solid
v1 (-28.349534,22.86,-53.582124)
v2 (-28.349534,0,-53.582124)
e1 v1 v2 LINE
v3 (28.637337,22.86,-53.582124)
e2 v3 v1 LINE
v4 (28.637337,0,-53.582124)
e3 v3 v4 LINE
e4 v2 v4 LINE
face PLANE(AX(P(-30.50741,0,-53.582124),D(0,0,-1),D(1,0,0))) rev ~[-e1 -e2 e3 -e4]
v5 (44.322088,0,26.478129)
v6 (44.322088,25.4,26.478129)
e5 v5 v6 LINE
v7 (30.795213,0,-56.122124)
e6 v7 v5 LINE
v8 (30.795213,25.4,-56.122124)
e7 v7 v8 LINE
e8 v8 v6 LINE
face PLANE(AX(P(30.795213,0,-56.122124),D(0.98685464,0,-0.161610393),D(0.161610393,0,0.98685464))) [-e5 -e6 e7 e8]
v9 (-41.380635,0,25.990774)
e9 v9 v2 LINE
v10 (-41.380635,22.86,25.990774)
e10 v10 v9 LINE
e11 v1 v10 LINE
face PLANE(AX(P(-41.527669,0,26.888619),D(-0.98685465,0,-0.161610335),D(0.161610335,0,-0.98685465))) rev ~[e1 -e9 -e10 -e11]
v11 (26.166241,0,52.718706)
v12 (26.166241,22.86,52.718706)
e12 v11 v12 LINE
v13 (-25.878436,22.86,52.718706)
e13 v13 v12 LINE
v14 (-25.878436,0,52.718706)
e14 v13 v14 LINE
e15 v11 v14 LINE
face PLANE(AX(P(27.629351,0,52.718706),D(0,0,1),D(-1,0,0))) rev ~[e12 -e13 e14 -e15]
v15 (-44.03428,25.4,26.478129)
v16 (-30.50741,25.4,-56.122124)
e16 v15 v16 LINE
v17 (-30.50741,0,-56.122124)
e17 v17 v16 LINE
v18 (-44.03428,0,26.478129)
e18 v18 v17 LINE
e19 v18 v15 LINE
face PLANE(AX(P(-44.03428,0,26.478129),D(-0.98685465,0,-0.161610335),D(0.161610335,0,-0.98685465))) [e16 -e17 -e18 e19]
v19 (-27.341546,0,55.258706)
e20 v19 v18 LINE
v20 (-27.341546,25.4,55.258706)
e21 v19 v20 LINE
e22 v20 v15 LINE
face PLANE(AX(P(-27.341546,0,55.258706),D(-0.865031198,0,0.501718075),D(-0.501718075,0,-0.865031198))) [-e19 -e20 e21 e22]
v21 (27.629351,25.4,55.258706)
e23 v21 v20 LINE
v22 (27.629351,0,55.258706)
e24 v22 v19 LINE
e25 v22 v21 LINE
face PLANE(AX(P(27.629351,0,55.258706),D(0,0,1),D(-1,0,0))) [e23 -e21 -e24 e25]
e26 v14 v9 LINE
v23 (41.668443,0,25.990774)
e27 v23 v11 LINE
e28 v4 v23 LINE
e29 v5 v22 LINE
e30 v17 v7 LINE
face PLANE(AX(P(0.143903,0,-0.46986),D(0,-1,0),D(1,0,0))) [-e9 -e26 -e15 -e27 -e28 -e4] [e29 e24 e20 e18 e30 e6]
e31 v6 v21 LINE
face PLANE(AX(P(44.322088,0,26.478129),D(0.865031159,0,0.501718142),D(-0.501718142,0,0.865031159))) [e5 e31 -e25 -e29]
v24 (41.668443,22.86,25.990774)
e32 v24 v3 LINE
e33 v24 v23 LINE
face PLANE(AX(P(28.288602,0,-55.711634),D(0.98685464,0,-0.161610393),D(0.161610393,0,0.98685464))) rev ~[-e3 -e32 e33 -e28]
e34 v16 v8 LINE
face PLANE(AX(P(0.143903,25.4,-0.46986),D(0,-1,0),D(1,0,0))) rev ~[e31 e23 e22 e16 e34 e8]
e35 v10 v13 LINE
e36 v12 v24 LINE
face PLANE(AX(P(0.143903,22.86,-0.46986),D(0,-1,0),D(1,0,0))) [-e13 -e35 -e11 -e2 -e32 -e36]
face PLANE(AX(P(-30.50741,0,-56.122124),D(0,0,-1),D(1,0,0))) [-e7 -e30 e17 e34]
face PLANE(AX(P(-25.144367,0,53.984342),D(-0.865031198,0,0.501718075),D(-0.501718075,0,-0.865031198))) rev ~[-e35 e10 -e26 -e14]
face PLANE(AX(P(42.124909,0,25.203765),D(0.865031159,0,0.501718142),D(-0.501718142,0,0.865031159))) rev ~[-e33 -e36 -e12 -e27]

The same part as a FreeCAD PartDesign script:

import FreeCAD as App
import Part
import Sketcher

V = App.Vector
Q = App.Units.Quantity


def faces_at(feature, points):
    """Names of the faces that lie closest to the given points."""
    faces = feature.Shape.Faces
    near = lambda p: min(range(len(faces)), key=lambda i: faces[i].distToShape(Part.Vertex(*p))[0])
    return sorted({f"Face{near(p) + 1}" for p in points})

doc = App.newDocument("Part")
body = doc.addObject("PartDesign::Body", "Body")

# Sketch on XZ plane
sketch1 = doc.addObject("Sketcher::SketchObject", "Sketch")
body.addObject(sketch1)
sketch1.AttachmentSupport = (doc.XZ_Plane, [""])
sketch1.MapMode = "FlatFace"
sketch1.addGeometry([
    Part.LineSegment(V(28, 55, 0), V(-27, 55, 0)),  # 0
    Part.LineSegment(V(-27, 55, 0), V(-44, 26, 0)),  # 1
    Part.LineSegment(V(-44, 26, 0), V(-31, -56, 0)),  # 2
    Part.LineSegment(V(-31, -56, 0), V(31, -56, 0)),  # 3
    Part.LineSegment(V(31, -56, 0), V(44, 26, 0)),  # 4
    Part.LineSegment(V(44, 26, 0), V(28, 55, 0)),  # 5
], False)
sketch1.addConstraint([
    Sketcher.Constraint("Coincident", 0, 2, 1, 1),
    Sketcher.Constraint("Coincident", 1, 2, 2, 1),
    Sketcher.Constraint("Coincident", 2, 2, 3, 1),
    Sketcher.Constraint("Coincident", 3, 2, 4, 1),
    Sketcher.Constraint("Coincident", 4, 2, 5, 1),
    Sketcher.Constraint("Coincident", 5, 2, 0, 1),
    Sketcher.Constraint("Horizontal", 0),
    Sketcher.Constraint("Horizontal", 3),
    Sketcher.Constraint("Horizontal", 1, 2, 4, 2),
    Sketcher.Constraint("Equal", 2, 4),
    Sketcher.Constraint("Equal", 1, 5),
    Sketcher.Constraint("DistanceX", 2, 2, 4, 2, 74.829498),
    Sketcher.Constraint("DistanceX", 0, 2, 0, 1, 54.970897),
    Sketcher.Constraint("DistanceX", 3, 1, 3, 2, 61.302623),
    Sketcher.Constraint("DistanceX", 1, 2, -1, 1, 44.03428),
    Sketcher.Constraint("DistanceY", -1, 1, 1, 2, 26.478129),
    Sketcher.Constraint("DistanceY", 2, 2, 0, 2, 111.38083),
    Sketcher.Constraint("Distance", 1, 33.271143),
])
pad1 = doc.addObject("PartDesign::Pad", "Pad")
body.addObject(pad1)
pad1.Profile = sketch1
pad1.Length = Q("1 in")
pad1.Reversed = True
doc.recompute()

thickness = doc.addObject("PartDesign::Thickness", "Thickness")
body.addObject(thickness)
thickness.Base = (pad1, faces_at(pad1, [(0.144, 0, -0.432)]))
thickness.Value = Q("0.1 in")
thickness.Reversed = True
thickness.Join = "Arc"

doc.recompute()
